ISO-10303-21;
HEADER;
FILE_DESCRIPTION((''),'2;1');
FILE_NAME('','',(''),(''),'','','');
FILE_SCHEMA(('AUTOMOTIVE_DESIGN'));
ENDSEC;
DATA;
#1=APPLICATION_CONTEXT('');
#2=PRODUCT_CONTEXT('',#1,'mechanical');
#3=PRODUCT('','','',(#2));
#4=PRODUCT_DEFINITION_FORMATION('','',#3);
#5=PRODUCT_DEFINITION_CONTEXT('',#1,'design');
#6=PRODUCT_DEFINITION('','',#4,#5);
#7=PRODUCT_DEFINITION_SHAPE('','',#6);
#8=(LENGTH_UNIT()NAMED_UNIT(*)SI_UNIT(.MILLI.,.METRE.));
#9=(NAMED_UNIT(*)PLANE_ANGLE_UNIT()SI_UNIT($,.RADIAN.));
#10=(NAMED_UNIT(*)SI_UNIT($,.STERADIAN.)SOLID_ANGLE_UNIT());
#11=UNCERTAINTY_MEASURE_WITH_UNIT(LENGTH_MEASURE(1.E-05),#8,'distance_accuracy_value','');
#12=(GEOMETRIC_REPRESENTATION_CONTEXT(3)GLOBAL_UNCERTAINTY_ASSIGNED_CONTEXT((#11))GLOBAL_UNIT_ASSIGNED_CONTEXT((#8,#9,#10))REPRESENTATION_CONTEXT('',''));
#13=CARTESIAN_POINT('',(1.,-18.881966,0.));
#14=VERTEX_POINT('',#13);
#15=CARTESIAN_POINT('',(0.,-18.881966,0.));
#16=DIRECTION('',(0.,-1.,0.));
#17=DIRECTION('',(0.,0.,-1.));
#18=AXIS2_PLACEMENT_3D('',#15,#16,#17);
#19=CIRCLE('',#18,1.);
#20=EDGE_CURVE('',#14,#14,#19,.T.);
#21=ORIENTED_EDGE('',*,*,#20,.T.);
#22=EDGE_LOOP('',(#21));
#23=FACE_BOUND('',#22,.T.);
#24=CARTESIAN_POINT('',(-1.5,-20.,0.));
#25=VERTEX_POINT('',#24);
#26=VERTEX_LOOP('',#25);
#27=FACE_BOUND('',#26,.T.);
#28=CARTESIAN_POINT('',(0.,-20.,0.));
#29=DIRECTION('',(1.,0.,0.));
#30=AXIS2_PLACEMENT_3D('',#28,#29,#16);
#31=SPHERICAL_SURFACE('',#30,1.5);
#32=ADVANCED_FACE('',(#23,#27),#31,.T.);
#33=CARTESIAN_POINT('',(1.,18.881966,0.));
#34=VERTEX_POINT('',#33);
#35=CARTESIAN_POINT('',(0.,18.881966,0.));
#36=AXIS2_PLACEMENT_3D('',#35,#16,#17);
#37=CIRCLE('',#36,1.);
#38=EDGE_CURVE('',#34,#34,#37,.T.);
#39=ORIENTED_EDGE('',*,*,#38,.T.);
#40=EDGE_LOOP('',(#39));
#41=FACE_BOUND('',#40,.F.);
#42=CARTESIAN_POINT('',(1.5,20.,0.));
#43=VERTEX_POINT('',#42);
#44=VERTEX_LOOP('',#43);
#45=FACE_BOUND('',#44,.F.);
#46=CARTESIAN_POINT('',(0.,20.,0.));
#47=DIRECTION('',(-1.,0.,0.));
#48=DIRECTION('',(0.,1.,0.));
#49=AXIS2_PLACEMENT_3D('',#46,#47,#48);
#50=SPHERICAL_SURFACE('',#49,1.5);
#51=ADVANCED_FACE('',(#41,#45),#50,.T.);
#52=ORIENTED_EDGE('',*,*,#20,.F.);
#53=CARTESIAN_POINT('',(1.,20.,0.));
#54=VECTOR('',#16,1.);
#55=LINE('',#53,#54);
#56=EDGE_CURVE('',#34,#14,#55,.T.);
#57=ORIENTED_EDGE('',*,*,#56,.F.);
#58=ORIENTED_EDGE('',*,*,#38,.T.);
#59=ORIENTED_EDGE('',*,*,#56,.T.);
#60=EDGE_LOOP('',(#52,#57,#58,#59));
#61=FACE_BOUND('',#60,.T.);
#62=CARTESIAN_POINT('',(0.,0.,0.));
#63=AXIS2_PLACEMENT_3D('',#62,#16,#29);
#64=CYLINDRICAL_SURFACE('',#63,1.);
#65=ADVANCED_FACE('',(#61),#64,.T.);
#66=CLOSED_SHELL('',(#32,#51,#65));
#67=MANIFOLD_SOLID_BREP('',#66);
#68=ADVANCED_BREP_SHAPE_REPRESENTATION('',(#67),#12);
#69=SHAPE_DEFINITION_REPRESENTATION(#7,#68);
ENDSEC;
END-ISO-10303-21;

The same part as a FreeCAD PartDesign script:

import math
import FreeCAD as App
import Part
import Sketcher
from FreeCAD import Vector
Q = App.Units.Quantity

doc = App.newDocument("Part")
body = doc.addObject("PartDesign::Body", "Body")

# Sketch on XZ plane
sketch1 = body.newObject("Sketcher::SketchObject", "Sketch")
sketch1.AttachmentSupport = (doc.getObject("XZ_Plane"), [""])
sketch1.MapMode = "FlatFace"
sketch1.addGeometry(Part.Circle(Vector(0, 0, 0), Vector(0, 0, 1), 1), False)
sketch1.addConstraint([
    Sketcher.Constraint("Coincident", 0, 3, -1, 1),
    Sketcher.Constraint("Diameter", 0, Q("2 mm")),
])
pad1 = body.newObject("PartDesign::Pad", "Pad")
pad1.Profile = sketch1
pad1.Length = 40
pad1.Midplane = True

# Sketch on XY plane
sketch2 = body.newObject("Sketcher::SketchObject", "Sketch001")
sketch2.AttachmentSupport = (doc.getObject("XY_Plane"), [""])
sketch2.MapMode = "FlatFace"
sketch2.addGeometry([
    Part.LineSegment(Vector(1.5, -20, 0), Vector(-1.5, -20, 0)),
    Part.ArcOfCircle(Part.Circle(Vector(0, -20, 0), Vector(0, 0, 1), 1.5), math.radians(180), math.radians(360)),
], False)
sketch2.addGeometry(Part.LineSegment(Vector(-1.5, -20, 0), Vector(1.5, -20, 0)), True)  # axis
sketch2.addConstraint([
    Sketcher.Constraint("Coincident", 0, 1, 1, 2),
    Sketcher.Constraint("Coincident", 1, 1, 0, 2),
    Sketcher.Constraint("Horizontal", 0),
    Sketcher.Constraint("Horizontal", 2),
    Sketcher.Constraint("Coincident", 2, 1, 1, 1),
    Sketcher.Constraint("PointOnObject", 1, 3, -2),
    Sketcher.Constraint("Horizontal", 1, 3, 0, 1),
    Sketcher.Constraint("Equal", 0, 2),
    Sketcher.Constraint("Radius", 1, Q("1.5 mm")),
    Sketcher.Constraint("DistanceY", 1, 3, -1, 1, Q("20 mm")),
])
revolution = body.newObject("PartDesign::Revolution", "Revolution")
revolution.Profile = sketch2
revolution.ReferenceAxis = (sketch2, ["Axis0"])
revolution.Angle = 360

# Sketch on XY plane
sketch3 = body.newObject("Sketcher::SketchObject", "Sketch002")
sketch3.AttachmentSupport = (doc.getObject("XY_Plane"), [""])
sketch3.MapMode = "FlatFace"
sketch3.addGeometry([
    Part.LineSegment(Vector(-1.5, 20, 0), Vector(1.5, 20, 0)),
    Part.ArcOfCircle(Part.Circle(Vector(0, 20, 0), Vector(0, 0, 1), 1.5), math.radians(0), math.radians(180)),
], False)
sketch3.addGeometry(Part.LineSegment(Vector(-1.5, 20, 0), Vector(1.5, 20, 0)), True)  # axis
sketch3.addConstraint([
    Sketcher.Constraint("Coincident", 0, 1, 1, 2),
    Sketcher.Constraint("Coincident", 1, 1, 0, 2),
    Sketcher.Constraint("Horizontal", 0),
    Sketcher.Constraint("Horizontal", 2),
    Sketcher.Constraint("Coincident", 2, 1, 0, 1),
    Sketcher.Constraint("PointOnObject", 1, 3, -2),
    Sketcher.Constraint("Horizontal", 1, 3, 0, 1),
    Sketcher.Constraint("Equal", 0, 2),
    Sketcher.Constraint("Radius", 1, Q("1.5 mm")),
    Sketcher.Constraint("DistanceY", -1, 1, 1, 3, Q("20 mm")),
])
revolution2 = body.newObject("PartDesign::Revolution", "Revolution001")
revolution2.Profile = sketch3
revolution2.ReferenceAxis = (sketch3, ["Axis0"])
revolution2.Angle = 360

doc.recompute()
